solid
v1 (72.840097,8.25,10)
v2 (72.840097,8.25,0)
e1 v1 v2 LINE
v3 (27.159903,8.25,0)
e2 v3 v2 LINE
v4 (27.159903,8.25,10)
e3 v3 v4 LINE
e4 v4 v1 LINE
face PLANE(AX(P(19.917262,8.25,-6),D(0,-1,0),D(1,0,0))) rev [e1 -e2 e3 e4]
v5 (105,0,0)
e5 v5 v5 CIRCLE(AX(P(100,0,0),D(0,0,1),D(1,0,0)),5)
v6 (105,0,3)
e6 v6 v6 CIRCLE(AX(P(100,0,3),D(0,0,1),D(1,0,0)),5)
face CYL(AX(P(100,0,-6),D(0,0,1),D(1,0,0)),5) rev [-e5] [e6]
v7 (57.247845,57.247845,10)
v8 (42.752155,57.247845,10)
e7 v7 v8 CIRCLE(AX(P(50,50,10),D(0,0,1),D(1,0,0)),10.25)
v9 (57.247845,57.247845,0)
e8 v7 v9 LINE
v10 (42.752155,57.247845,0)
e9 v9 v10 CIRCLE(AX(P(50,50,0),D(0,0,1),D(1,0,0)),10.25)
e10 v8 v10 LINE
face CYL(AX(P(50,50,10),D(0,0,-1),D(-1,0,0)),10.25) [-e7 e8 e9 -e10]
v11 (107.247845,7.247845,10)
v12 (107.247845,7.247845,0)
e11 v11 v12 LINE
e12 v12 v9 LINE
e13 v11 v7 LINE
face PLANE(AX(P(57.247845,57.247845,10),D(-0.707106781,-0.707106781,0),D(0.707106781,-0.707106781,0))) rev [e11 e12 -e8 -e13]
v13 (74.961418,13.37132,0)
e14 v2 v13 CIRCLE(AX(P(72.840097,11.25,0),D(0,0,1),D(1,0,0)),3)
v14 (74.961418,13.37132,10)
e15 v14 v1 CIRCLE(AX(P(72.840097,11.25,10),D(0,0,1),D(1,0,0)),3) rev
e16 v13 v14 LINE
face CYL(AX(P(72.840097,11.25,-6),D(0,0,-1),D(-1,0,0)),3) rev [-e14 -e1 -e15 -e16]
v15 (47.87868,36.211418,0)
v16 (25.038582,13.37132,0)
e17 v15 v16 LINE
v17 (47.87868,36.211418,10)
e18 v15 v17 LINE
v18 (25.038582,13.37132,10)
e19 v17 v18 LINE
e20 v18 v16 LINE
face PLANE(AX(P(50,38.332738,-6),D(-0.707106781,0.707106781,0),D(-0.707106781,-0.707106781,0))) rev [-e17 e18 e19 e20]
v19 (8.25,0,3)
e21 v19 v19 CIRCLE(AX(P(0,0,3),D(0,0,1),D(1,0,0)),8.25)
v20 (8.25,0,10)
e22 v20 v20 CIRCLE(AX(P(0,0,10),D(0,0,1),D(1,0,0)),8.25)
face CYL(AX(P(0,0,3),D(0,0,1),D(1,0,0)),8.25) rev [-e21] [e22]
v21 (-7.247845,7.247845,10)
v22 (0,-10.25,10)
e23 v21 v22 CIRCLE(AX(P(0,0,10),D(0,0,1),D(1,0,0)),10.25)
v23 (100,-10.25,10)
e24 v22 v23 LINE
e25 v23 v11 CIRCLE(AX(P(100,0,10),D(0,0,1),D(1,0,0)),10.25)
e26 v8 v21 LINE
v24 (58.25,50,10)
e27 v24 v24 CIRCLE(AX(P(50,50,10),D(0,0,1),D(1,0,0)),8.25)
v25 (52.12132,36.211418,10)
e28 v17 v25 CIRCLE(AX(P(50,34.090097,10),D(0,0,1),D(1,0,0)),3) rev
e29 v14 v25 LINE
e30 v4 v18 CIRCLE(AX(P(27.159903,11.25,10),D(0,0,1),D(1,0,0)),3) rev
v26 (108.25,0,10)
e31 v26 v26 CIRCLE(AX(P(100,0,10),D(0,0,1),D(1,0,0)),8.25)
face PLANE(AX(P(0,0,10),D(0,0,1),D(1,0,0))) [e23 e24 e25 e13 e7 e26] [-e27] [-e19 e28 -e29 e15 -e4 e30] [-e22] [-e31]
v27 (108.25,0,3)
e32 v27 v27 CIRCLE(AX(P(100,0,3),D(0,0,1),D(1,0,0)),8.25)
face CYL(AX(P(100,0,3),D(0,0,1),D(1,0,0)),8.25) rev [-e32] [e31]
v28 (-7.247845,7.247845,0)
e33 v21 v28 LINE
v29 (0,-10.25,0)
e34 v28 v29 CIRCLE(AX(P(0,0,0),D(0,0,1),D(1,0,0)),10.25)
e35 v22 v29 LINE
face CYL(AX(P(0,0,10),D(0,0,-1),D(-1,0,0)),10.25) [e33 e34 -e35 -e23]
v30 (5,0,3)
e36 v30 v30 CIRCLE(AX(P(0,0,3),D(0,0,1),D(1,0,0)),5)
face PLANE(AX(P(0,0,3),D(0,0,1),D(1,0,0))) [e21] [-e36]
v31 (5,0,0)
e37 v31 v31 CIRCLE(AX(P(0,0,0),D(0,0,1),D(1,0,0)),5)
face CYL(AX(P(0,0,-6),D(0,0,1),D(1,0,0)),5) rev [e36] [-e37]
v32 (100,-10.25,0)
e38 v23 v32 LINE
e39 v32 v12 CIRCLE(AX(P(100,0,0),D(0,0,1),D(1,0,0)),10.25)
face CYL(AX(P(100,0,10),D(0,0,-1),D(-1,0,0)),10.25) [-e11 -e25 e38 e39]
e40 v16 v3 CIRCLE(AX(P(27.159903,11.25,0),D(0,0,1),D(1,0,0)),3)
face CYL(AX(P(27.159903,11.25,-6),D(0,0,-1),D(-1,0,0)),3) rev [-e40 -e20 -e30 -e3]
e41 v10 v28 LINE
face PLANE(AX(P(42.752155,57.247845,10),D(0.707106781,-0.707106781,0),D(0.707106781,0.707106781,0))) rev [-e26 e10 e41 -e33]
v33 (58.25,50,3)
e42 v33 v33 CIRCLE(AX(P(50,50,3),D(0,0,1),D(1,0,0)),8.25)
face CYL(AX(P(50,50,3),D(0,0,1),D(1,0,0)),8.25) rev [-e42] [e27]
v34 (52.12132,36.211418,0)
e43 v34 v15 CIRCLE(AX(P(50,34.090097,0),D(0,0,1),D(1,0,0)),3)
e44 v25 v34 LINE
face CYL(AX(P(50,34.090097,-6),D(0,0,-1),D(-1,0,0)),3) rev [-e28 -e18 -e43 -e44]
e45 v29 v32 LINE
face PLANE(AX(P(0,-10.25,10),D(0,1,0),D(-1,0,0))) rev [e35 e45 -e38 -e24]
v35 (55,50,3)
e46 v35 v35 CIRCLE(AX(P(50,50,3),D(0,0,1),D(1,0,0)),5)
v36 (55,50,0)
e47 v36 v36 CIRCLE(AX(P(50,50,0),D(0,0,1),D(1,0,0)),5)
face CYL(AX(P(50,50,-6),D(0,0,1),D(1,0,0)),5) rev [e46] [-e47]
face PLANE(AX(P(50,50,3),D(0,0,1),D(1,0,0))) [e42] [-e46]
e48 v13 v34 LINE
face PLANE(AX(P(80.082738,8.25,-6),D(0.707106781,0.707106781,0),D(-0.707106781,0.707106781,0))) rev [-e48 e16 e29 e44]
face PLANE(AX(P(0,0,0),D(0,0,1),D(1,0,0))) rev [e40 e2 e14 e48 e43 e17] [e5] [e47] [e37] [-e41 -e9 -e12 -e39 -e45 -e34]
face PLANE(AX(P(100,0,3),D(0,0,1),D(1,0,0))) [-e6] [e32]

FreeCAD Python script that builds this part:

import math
import FreeCAD as App
import Part
import Sketcher
from FreeCAD import Vector


def edges_at(feature, points):
    """Names of the edges that pass closest to the given points."""
    edges = feature.Shape.Edges
    near = lambda p: min(range(len(edges)), key=lambda i: edges[i].distToShape(Part.Vertex(*p))[0])
    return sorted({f"Edge{near(p) + 1}" for p in points})

doc = App.newDocument("Part")
body = doc.addObject("PartDesign::Body", "Body")

# Sketch on XY plane
sketch1 = body.newObject("Sketcher::SketchObject", "Sketch")
sketch1.AttachmentSupport = (doc.getObject("XY_Plane"), [""])
sketch1.MapMode = "FlatFace"
sketch1.addGeometry(Part.ArcOfCircle(Part.Circle(Vector(0, 0, 0), Vector(0, 0, 1), 10), math.radians(135), math.radians(270)), False)
sketch1.addGeometry(Part.LineSegment(Vector(0, -10, 0), Vector(100, -10, 0)), False)
sketch1.addGeometry(Part.ArcOfCircle(Part.Circle(Vector(100, 0, 0), Vector(0, 0, 1), 10), math.radians(-90), math.radians(45)), False)
sketch1.addGeometry(Part.LineSegment(Vector(107, 7, 0), Vector(57, 57, 0)), False)
sketch1.addGeometry(Part.ArcOfCircle(Part.Circle(Vector(50, 50, 0), Vector(0, 0, 1), 10), math.radians(45), math.radians(135)), False)
sketch1.addGeometry(Part.LineSegment(Vector(43, 57, 0), Vector(-7, 7, 0)), False)
sketch1.addGeometry(Part.LineSegment(Vector(50, 36, 0), Vector(75, 10, 0)), False)
sketch1.addGeometry(Part.LineSegment(Vector(75, 10, 0), Vector(25, 10, 0)), False)
sketch1.addGeometry(Part.LineSegment(Vector(25, 10, 0), Vector(50, 36, 0)), False)
sketch1.addConstraint(Sketcher.Constraint("Tangent", 0, 2, 1, 1))
sketch1.addConstraint(Sketcher.Constraint("Tangent", 1, 2, 2, 1))
sketch1.addConstraint(Sketcher.Constraint("Tangent", 2, 2, 3, 1))
sketch1.addConstraint(Sketcher.Constraint("Tangent", 3, 2, 4, 1))
sketch1.addConstraint(Sketcher.Constraint("Tangent", 4, 2, 5, 1))
sketch1.addConstraint(Sketcher.Constraint("Tangent", 5, 2, 0, 1))
sketch1.addConstraint(Sketcher.Constraint("Coincident", 6, 2, 7, 1))
sketch1.addConstraint(Sketcher.Constraint("Coincident", 7, 2, 8, 1))
sketch1.addConstraint(Sketcher.Constraint("Coincident", 8, 2, 6, 1))
sketch1.addConstraint(Sketcher.Constraint("Horizontal", 1))
sketch1.addConstraint(Sketcher.Constraint("Horizontal", 7))
sketch1.addConstraint(Sketcher.Constraint("Coincident", 0, 3, -1, 1))
sketch1.addConstraint(Sketcher.Constraint("Equal", 0, 2))
sketch1.addConstraint(Sketcher.Constraint("Equal", 2, 4))
sketch1.addConstraint(Sketcher.Constraint("Perpendicular", 3, 5))
sketch1.addConstraint(Sketcher.Constraint("Perpendicular", 5, 6))
sketch1.addConstraint(Sketcher.Constraint("Perpendicular", 6, 8))
sketch1.addConstraint(Sketcher.Constraint("Horizontal", 3, 2, 4, 2))
sketch1.addConstraint(Sketcher.Constraint("Vertical", 4, 3, 8, 2))
sketch1.addConstraint(Sketcher.Constraint("DistanceX", 1, 1, 1, 2, 100.0))
sketch1.addConstraint(Sketcher.Constraint("Radius", 0, 10.25))
sketch1.addConstraint(Sketcher.Constraint("DistanceY", 1, 2, 6, 2, 20.5))
sketch1.addConstraint(Sketcher.Constraint("DistanceX", 7, 2, 7, 1, 50.508622))
pad1 = body.newObject("PartDesign::Pad", "Pad")
pad1.Profile = sketch1
pad1.Length = 10

# Sketch on XY plane
sketch2 = body.newObject("Sketcher::SketchObject", "Sketch001")
sketch2.AttachmentSupport = (doc.getObject("XY_Plane"), [""])
sketch2.MapMode = "FlatFace"
sketch2.AttachmentOffset = App.Placement(Vector(0, 0, 10), App.Rotation())
sketch2.addGeometry(Part.Circle(Vector(50, 50, 0), Vector(0, 0, 1), 8), False)
sketch2.addGeometry(Part.Circle(Vector(100, 0, 0), Vector(0, 0, 1), 8), False)
sketch2.addGeometry(Part.Circle(Vector(0, 0, 0), Vector(0, 0, 1), 8), False)
sketch2.addConstraint(Sketcher.Constraint("Coincident", 2, 3, -1, 1))
sketch2.addConstraint(Sketcher.Constraint("Equal", 0, 1))
sketch2.addConstraint(Sketcher.Constraint("Equal", 1, 2))
sketch2.addConstraint(Sketcher.Constraint("PointOnObject", 1, 3, -1))
sketch2.addConstraint(Sketcher.Constraint("Diameter", 0, 16.5))
sketch2.addConstraint(Sketcher.Constraint("DistanceX", -1, 1, 0, 3, 50.0))
sketch2.addConstraint(Sketcher.Constraint("DistanceY", -1, 1, 0, 3, 50.0))
sketch2.addConstraint(Sketcher.Constraint("DistanceX", -1, 1, 1, 3, 100.0))
pocket1 = body.newObject("PartDesign::Pocket", "Pocket")
pocket1.Profile = sketch2
pocket1.Length = 7

# Sketch on XY plane
sketch3 = body.newObject("Sketcher::SketchObject", "Sketch002")
sketch3.AttachmentSupport = (doc.getObject("XY_Plane"), [""])
sketch3.MapMode = "FlatFace"
sketch3.AttachmentOffset = App.Placement(Vector(0, 0, 10), App.Rotation())
sketch3.addGeometry(Part.LineSegment(Vector(20, 8, 0), Vector(80, 8, 0)), False)
sketch3.addGeometry(Part.LineSegment(Vector(80, 8, 0), Vector(50, 38, 0)), False)
sketch3.addGeometry(Part.LineSegment(Vector(50, 38, 0), Vector(20, 8, 0)), False)
sketch3.addConstraint(Sketcher.Constraint("Coincident", 0, 2, 1, 1))
sketch3.addConstraint(Sketcher.Constraint("Coincident", 1, 2, 2, 1))
sketch3.addConstraint(Sketcher.Constraint("Coincident", 2, 2, 0, 1))
sketch3.addConstraint(Sketcher.Constraint("Horizontal", 0))
sketch3.addConstraint(Sketcher.Constraint("Perpendicular", 1, 2))
sketch3.addConstraint(Sketcher.Constraint("Equal", 1, 2))
sketch3.addConstraint(Sketcher.Constraint("DistanceX", -1, 1, 1, 2, 50.0))
sketch3.addConstraint(Sketcher.Constraint("DistanceY", -1, 1, 0, 2, 8.25))
sketch3.addConstraint(Sketcher.Constraint("DistanceX", 0, 1, 0, 2, 60.165476))
pocket2 = body.newObject("PartDesign::Pocket", "Pocket001")
pocket2.Profile = sketch3
pocket2.Length = 16
doc.recompute()

fillet = body.newObject("PartDesign::Fillet", "Fillet")
fillet.Base = (pocket2, edges_at(pocket2, [(19.917, 8.25, 5), (50, 38.333, 5), (80.083, 8.25, 5)]))
fillet.Radius = 3

# Sketch on XY plane
sketch4 = body.newObject("Sketcher::SketchObject", "Sketch003")
sketch4.AttachmentSupport = (doc.getObject("XY_Plane"), [""])
sketch4.MapMode = "FlatFace"
sketch4.AttachmentOffset = App.Placement(Vector(0, 0, 10), App.Rotation())
sketch4.addGeometry(Part.Circle(Vector(0, 0, 0), Vector(0, 0, 1), 5), False)
sketch4.addGeometry(Part.Circle(Vector(50, 50, 0), Vector(0, 0, 1), 5), False)
sketch4.addGeometry(Part.Circle(Vector(100, 0, 0), Vector(0, 0, 1), 5), False)
sketch4.addConstraint(Sketcher.Constraint("Coincident", 0, 3, -1, 1))
sketch4.addConstraint(Sketcher.Constraint("Equal", 0, 1))
sketch4.addConstraint(Sketcher.Constraint("Equal", 1, 2))
sketch4.addConstraint(Sketcher.Constraint("PointOnObject", 2, 3, -1))
sketch4.addConstraint(Sketcher.Constraint("Diameter", 0, 10.0))
sketch4.addConstraint(Sketcher.Constraint("DistanceX", -1, 1, 1, 3, 50.0))
sketch4.addConstraint(Sketcher.Constraint("DistanceY", -1, 1, 1, 3, 50.0))
sketch4.addConstraint(Sketcher.Constraint("DistanceX", -1, 1, 2, 3, 100.0))
pocket3 = body.newObject("PartDesign::Pocket", "Pocket002")
pocket3.Profile = sketch4
pocket3.Length = 16

doc.recompute()
